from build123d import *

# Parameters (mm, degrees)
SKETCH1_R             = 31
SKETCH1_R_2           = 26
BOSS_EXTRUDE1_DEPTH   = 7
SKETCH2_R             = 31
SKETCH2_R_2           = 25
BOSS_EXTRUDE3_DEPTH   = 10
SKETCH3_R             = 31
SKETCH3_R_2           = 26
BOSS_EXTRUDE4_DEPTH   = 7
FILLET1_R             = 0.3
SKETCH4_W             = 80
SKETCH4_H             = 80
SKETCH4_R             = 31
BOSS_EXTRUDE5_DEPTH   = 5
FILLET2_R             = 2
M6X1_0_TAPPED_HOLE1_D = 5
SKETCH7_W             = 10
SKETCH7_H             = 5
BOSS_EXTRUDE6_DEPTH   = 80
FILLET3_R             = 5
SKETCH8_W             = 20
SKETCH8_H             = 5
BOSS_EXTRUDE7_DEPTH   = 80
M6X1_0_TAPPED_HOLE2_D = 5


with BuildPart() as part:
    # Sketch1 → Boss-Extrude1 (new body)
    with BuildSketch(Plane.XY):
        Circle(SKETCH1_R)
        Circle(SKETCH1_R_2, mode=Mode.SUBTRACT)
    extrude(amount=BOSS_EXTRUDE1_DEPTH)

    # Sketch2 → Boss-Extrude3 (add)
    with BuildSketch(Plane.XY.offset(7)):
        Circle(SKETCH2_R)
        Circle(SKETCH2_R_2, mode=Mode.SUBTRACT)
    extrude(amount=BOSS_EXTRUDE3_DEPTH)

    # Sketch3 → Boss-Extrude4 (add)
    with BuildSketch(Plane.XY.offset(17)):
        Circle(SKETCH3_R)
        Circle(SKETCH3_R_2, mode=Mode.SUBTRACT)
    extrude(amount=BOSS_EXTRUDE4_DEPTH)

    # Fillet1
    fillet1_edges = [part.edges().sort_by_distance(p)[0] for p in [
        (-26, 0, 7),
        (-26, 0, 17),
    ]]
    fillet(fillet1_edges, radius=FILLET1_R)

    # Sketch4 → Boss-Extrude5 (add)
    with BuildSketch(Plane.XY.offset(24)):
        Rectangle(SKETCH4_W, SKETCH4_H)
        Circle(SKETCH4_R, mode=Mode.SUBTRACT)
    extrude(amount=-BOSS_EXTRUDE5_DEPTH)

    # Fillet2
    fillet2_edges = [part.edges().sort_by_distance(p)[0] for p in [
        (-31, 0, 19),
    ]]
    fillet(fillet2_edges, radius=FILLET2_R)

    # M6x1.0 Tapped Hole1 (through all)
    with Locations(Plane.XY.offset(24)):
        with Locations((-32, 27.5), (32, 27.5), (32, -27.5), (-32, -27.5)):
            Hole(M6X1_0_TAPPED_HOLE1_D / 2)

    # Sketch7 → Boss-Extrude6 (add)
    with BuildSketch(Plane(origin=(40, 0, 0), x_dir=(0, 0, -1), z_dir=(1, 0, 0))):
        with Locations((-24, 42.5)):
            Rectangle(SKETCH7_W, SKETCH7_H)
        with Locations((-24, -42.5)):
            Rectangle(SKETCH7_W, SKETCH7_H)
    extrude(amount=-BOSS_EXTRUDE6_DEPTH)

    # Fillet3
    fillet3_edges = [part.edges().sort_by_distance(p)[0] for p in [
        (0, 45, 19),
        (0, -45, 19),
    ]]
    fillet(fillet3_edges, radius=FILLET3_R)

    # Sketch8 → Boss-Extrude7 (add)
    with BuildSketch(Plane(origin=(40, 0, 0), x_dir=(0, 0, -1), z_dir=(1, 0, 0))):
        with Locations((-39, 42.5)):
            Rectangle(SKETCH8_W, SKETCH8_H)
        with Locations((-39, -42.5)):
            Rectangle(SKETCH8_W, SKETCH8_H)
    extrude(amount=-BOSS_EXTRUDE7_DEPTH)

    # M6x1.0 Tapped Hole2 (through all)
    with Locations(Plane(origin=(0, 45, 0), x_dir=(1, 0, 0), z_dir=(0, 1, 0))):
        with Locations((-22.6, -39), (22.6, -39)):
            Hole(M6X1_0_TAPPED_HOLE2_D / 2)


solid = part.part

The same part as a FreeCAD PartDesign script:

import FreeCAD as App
import Part
import Sketcher
from FreeCAD import Vector


def edges_at(feature, points):
    """Names of the edges that pass closest to the given points."""
    edges = feature.Shape.Edges
    near = lambda p: min(range(len(edges)), key=lambda i: edges[i].distToShape(Part.Vertex(*p))[0])
    return sorted({f"Edge{near(p) + 1}" for p in points})

doc = App.newDocument("Part")
body = doc.addObject("PartDesign::Body", "Body")

# Sketch on XY plane
sketch1 = body.newObject("Sketcher::SketchObject", "Sketch")
sketch1.AttachmentSupport = (doc.getObject("XY_Plane"), [""])
sketch1.MapMode = "FlatFace"
sketch1.addGeometry(Part.Circle(Vector(0, 0, 0), Vector(0, 0, 1), 31), False)
sketch1.addGeometry(Part.Circle(Vector(0, 0, 0), Vector(0, 0, 1), 26), False)
sketch1.addConstraint(Sketcher.Constraint("Coincident", 0, 3, -1, 1))
sketch1.addConstraint(Sketcher.Constraint("Coincident", 1, 3, -1, 1))
sketch1.addConstraint(Sketcher.Constraint("Diameter", 0, 62.0))
sketch1.addConstraint(Sketcher.Constraint("Diameter", 1, 52.0))
pad1 = body.newObject("PartDesign::Pad", "Pad")
pad1.Profile = sketch1
pad1.Length = 7

# Sketch on XY plane
sketch2 = body.newObject("Sketcher::SketchObject", "Sketch001")
sketch2.AttachmentSupport = (doc.getObject("XY_Plane"), [""])
sketch2.MapMode = "FlatFace"
sketch2.AttachmentOffset = App.Placement(Vector(0, 0, 7), App.Rotation())
sketch2.addGeometry(Part.Circle(Vector(0, 0, 0), Vector(0, 0, 1), 31), False)
sketch2.addGeometry(Part.Circle(Vector(0, 0, 0), Vector(0, 0, 1), 25), False)
sketch2.addConstraint(Sketcher.Constraint("Coincident", 0, 3, -1, 1))
sketch2.addConstraint(Sketcher.Constraint("Coincident", 1, 3, -1, 1))
sketch2.addConstraint(Sketcher.Constraint("Diameter", 0, 62.0))
sketch2.addConstraint(Sketcher.Constraint("Diameter", 1, 50.0))
pad2 = body.newObject("PartDesign::Pad", "Pad001")
pad2.Profile = sketch2
pad2.Length = 10

# Sketch on XY plane
sketch3 = body.newObject("Sketcher::SketchObject", "Sketch002")
sketch3.AttachmentSupport = (doc.getObject("XY_Plane"), [""])
sketch3.MapMode = "FlatFace"
sketch3.AttachmentOffset = App.Placement(Vector(0, 0, 17), App.Rotation())
sketch3.addGeometry(Part.Circle(Vector(0, 0, 0), Vector(0, 0, 1), 31), False)
sketch3.addGeometry(Part.Circle(Vector(0, 0, 0), Vector(0, 0, 1), 26), False)
sketch3.addConstraint(Sketcher.Constraint("Coincident", 0, 3, -1, 1))
sketch3.addConstraint(Sketcher.Constraint("Coincident", 1, 3, -1, 1))
sketch3.addConstraint(Sketcher.Constraint("Diameter", 0, 62.0))
sketch3.addConstraint(Sketcher.Constraint("Diameter", 1, 52.0))
pad3 = body.newObject("PartDesign::Pad", "Pad002")
pad3.Profile = sketch3
pad3.Length = 7
doc.recompute()

fillet = body.newObject("PartDesign::Fillet", "Fillet")
fillet.Base = (pad3, edges_at(pad3, [(-26, 0, 7), (-26, 0, 17)]))
fillet.Radius = 0.3

# Sketch on XY plane
sketch4 = body.newObject("Sketcher::SketchObject", "Sketch003")
sketch4.AttachmentSupport = (doc.getObject("XY_Plane"), [""])
sketch4.MapMode = "FlatFace"
sketch4.AttachmentOffset = App.Placement(Vector(0, 0, 24), App.Rotation())
sketch4.addGeometry(Part.LineSegment(Vector(-40, 40, 0), Vector(-40, -40, 0)), False)
sketch4.addGeometry(Part.LineSegment(Vector(-40, -40, 0), Vector(40, -40, 0)), False)
sketch4.addGeometry(Part.LineSegment(Vector(40, -40, 0), Vector(40, 40, 0)), False)
sketch4.addGeometry(Part.LineSegment(Vector(40, 40, 0), Vector(-40, 40, 0)), False)
sketch4.addGeometry(Part.Circle(Vector(0, 0, 0), Vector(0, 0, 1), 31), False)
sketch4.addConstraint(Sketcher.Constraint("Coincident", 0, 2, 1, 1))
sketch4.addConstraint(Sketcher.Constraint("Coincident", 1, 2, 2, 1))
sketch4.addConstraint(Sketcher.Constraint("Coincident", 2, 2, 3, 1))
sketch4.addConstraint(Sketcher.Constraint("Coincident", 3, 2, 0, 1))
sketch4.addConstraint(Sketcher.Constraint("Vertical", 0))
sketch4.addConstraint(Sketcher.Constraint("Horizontal", 1))
sketch4.addConstraint(Sketcher.Constraint("Vertical", 2))
sketch4.addConstraint(Sketcher.Constraint("Horizontal", 3))
sketch4.addConstraint(Sketcher.Constraint("Coincident", 4, 3, -1, 1))
sketch4.addConstraint(Sketcher.Constraint("Symmetric", 0, 2, 2, 2, -1, 1))
sketch4.addConstraint(Sketcher.Constraint("Equal", 3, 0))
sketch4.addConstraint(Sketcher.Constraint("Diameter", 4, 62.0))
sketch4.addConstraint(Sketcher.Constraint("DistanceX", 1, 1, 1, 2, 80.0))
pad4 = body.newObject("PartDesign::Pad", "Pad003")
pad4.Profile = sketch4
pad4.Length = 5
pad4.Reversed = True
doc.recompute()

fillet2 = body.newObject("PartDesign::Fillet", "Fillet001")
fillet2.Base = (pad4, edges_at(pad4, [(-31, 0, 19)]))
fillet2.Radius = 2

# Sketch on XY plane
sketch5 = body.newObject("Sketcher::SketchObject", "Sketch004")
sketch5.AttachmentSupport = (doc.getObject("XY_Plane"), [""])
sketch5.MapMode = "FlatFace"
sketch5.AttachmentOffset = App.Placement(Vector(0, 0, 24), App.Rotation())
sketch5.addGeometry(Part.Circle(Vector(-32, 27.5, 0), Vector(0, 0, 1), 2.5), False)
sketch5.addGeometry(Part.Circle(Vector(32, 27.5, 0), Vector(0, 0, 1), 2.5), False)
sketch5.addGeometry(Part.Circle(Vector(32, -27.5, 0), Vector(0, 0, 1), 2.5), False)
sketch5.addGeometry(Part.Circle(Vector(-32, -27.5, 0), Vector(0, 0, 1), 2.5), False)
sketch5.addConstraint(Sketcher.Constraint("Equal", 0, 1))
sketch5.addConstraint(Sketcher.Constraint("Equal", 1, 2))
sketch5.addConstraint(Sketcher.Constraint("Equal", 2, 3))
sketch5.addConstraint(Sketcher.Constraint("Symmetric", 0, 3, 2, 3, -1, 1))
sketch5.addConstraint(Sketcher.Constraint("Symmetric", 1, 3, 3, 3, -1, 1))
sketch5.addConstraint(Sketcher.Constraint("Symmetric", 0, 3, 1, 3, -2))
sketch5.addConstraint(Sketcher.Constraint("Diameter", 0, 5.0))
sketch5.addConstraint(Sketcher.Constraint("DistanceX", 0, 3, -1, 1, 32.0))
sketch5.addConstraint(Sketcher.Constraint("DistanceY", 2, 3, 1, 3, 55.0))
doc.recompute()
hole = body.newObject("PartDesign::Hole", "Hole")
hole.Profile = sketch5
hole.ThreadType = "None"
hole.Diameter = 5
hole.DepthType = "ThroughAll"

# Sketch on YZ plane
sketch6 = body.newObject("Sketcher::SketchObject", "Sketch005")
sketch6.AttachmentSupport = (doc.getObject("YZ_Plane"), [""])
sketch6.MapMode = "FlatFace"
sketch6.AttachmentOffset = App.Placement(Vector(0, 0, 40), App.Rotation())
sketch6.addGeometry(Part.LineSegment(Vector(45, 29, 0), Vector(40, 29, 0)), False)
sketch6.addGeometry(Part.LineSegment(Vector(40, 29, 0), Vector(40, 19, 0)), False)
sketch6.addGeometry(Part.LineSegment(Vector(40, 19, 0), Vector(45, 19, 0)), False)
sketch6.addGeometry(Part.LineSegment(Vector(45, 19, 0), Vector(45, 29, 0)), False)
sketch6.addGeometry(Part.LineSegment(Vector(-40, 29, 0), Vector(-45, 29, 0)), False)
sketch6.addGeometry(Part.LineSegment(Vector(-45, 29, 0), Vector(-45, 19, 0)), False)
sketch6.addGeometry(Part.LineSegment(Vector(-45, 19, 0), Vector(-40, 19, 0)), False)
sketch6.addGeometry(Part.LineSegment(Vector(-40, 19, 0), Vector(-40, 29, 0)), False)
sketch6.addConstraint(Sketcher.Constraint("Coincident", 0, 2, 1, 1))
sketch6.addConstraint(Sketcher.Constraint("Coincident", 1, 2, 2, 1))
sketch6.addConstraint(Sketcher.Constraint("Coincident", 2, 2, 3, 1))
sketch6.addConstraint(Sketcher.Constraint("Coincident", 3, 2, 0, 1))
sketch6.addConstraint(Sketcher.Constraint("Coincident", 4, 2, 5, 1))
sketch6.addConstraint(Sketcher.Constraint("Coincident", 5, 2, 6, 1))
sketch6.addConstraint(Sketcher.Constraint("Coincident", 6, 2, 7, 1))
sketch6.addConstraint(Sketcher.Constraint("Coincident", 7, 2, 4, 1))
sketch6.addConstraint(Sketcher.Constraint("Horizontal", 0))
sketch6.addConstraint(Sketcher.Constraint("Vertical", 1))
sketch6.addConstraint(Sketcher.Constraint("Horizontal", 2))
sketch6.addConstraint(Sketcher.Constraint("Vertical", 3))
sketch6.addConstraint(Sketcher.Constraint("Horizontal", 4))
sketch6.addConstraint(Sketcher.Constraint("Vertical", 5))
sketch6.addConstraint(Sketcher.Constraint("Horizontal", 6))
sketch6.addConstraint(Sketcher.Constraint("Vertical", 7))
sketch6.addConstraint(Sketcher.Constraint("Symmetric", 3, 2, 4, 2, -2))
sketch6.addConstraint(Sketcher.Constraint("Symmetric", 1, 2, 6, 2, -2))
sketch6.addConstraint(Sketcher.Constraint("DistanceX", 0, 2, 0, 1, 5.0))
sketch6.addConstraint(Sketcher.Constraint("DistanceY", 1, 2, 1, 1, 10.0))
sketch6.addConstraint(Sketcher.Constraint("DistanceX", -1, 1, 0, 2, 40.0))
sketch6.addConstraint(Sketcher.Constraint("DistanceY", -1, 1, 0, 2, 29.0))
pad5 = body.newObject("PartDesign::Pad", "Pad004")
pad5.Profile = sketch6
pad5.Length = 80
pad5.Reversed = True
doc.recompute()

fillet3 = body.newObject("PartDesign::Fillet", "Fillet002")
fillet3.Base = (pad5, edges_at(pad5, [(0, 45, 19), (0, -45, 19)]))
fillet3.Radius = 5

# Sketch on YZ plane
sketch7 = body.newObject("Sketcher::SketchObject", "Sketch006")
sketch7.AttachmentSupport = (doc.getObject("YZ_Plane"), [""])
sketch7.MapMode = "FlatFace"
sketch7.AttachmentOffset = App.Placement(Vector(0, 0, 40), App.Rotation())
sketch7.addGeometry(Part.LineSegment(Vector(45, 49, 0), Vector(40, 49, 0)), False)
sketch7.addGeometry(Part.LineSegment(Vector(40, 49, 0), Vector(40, 29, 0)), False)
sketch7.addGeometry(Part.LineSegment(Vector(40, 29, 0), Vector(45, 29, 0)), False)
sketch7.addGeometry(Part.LineSegment(Vector(45, 29, 0), Vector(45, 49, 0)), False)
sketch7.addGeometry(Part.LineSegment(Vector(-40, 49, 0), Vector(-45, 49, 0)), False)
sketch7.addGeometry(Part.LineSegment(Vector(-45, 49, 0), Vector(-45, 29, 0)), False)
sketch7.addGeometry(Part.LineSegment(Vector(-45, 29, 0), Vector(-40, 29, 0)), False)
sketch7.addGeometry(Part.LineSegment(Vector(-40, 29, 0), Vector(-40, 49, 0)), False)
sketch7.addConstraint(Sketcher.Constraint("Coincident", 0, 2, 1, 1))
sketch7.addConstraint(Sketcher.Constraint("Coincident", 1, 2, 2, 1))
sketch7.addConstraint(Sketcher.Constraint("Coincident", 2, 2, 3, 1))
sketch7.addConstraint(Sketcher.Constraint("Coincident", 3, 2, 0, 1))
sketch7.addConstraint(Sketcher.Constraint("Coincident", 4, 2, 5, 1))
sketch7.addConstraint(Sketcher.Constraint("Coincident", 5, 2, 6, 1))
sketch7.addConstraint(Sketcher.Constraint("Coincident", 6, 2, 7, 1))
sketch7.addConstraint(Sketcher.Constraint("Coincident", 7, 2, 4, 1))
sketch7.addConstraint(Sketcher.Constraint("Horizontal", 0))
sketch7.addConstraint(Sketcher.Constraint("Vertical", 1))
sketch7.addConstraint(Sketcher.Constraint("Horizontal", 2))
sketch7.addConstraint(Sketcher.Constraint("Vertical", 3))
sketch7.addConstraint(Sketcher.Constraint("Horizontal", 4))
sketch7.addConstraint(Sketcher.Constraint("Vertical", 5))
sketch7.addConstraint(Sketcher.Constraint("Horizontal", 6))
sketch7.addConstraint(Sketcher.Constraint("Vertical", 7))
sketch7.addConstraint(Sketcher.Constraint("Symmetric", 3, 2, 4, 2, -2))
sketch7.addConstraint(Sketcher.Constraint("Symmetric", 1, 2, 6, 2, -2))
sketch7.addConstraint(Sketcher.Constraint("DistanceX", 0, 2, 0, 1, 5.0))
sketch7.addConstraint(Sketcher.Constraint("DistanceY", 1, 2, 1, 1, 20.0))
sketch7.addConstraint(Sketcher.Constraint("DistanceX", -1, 1, 0, 2, 40.0))
sketch7.addConstraint(Sketcher.Constraint("DistanceY", -1, 1, 0, 2, 49.0))
pad6 = body.newObject("PartDesign::Pad", "Pad005")
pad6.Profile = sketch7
pad6.Length = 80
pad6.Reversed = True

# Sketch on XZ plane
sketch8 = body.newObject("Sketcher::SketchObject", "Sketch007")
sketch8.AttachmentSupport = (doc.getObject("XZ_Plane"), [""])
sketch8.MapMode = "FlatFace"
sketch8.AttachmentOffset = App.Placement(Vector(0, 0, -45), App.Rotation())
sketch8.addGeometry(Part.Circle(Vector(-22.6, 39, 0), Vector(0, 0, 1), 2.5), False)
sketch8.addGeometry(Part.Circle(Vector(22.6, 39, 0), Vector(0, 0, 1), 2.5), False)
sketch8.addConstraint(Sketcher.Constraint("Equal", 0, 1))
sketch8.addConstraint(Sketcher.Constraint("Symmetric", 0, 3, 1, 3, -2))
sketch8.addConstraint(Sketcher.Constraint("Diameter", 0, 5.0))
sketch8.addConstraint(Sketcher.Constraint("DistanceY", -1, 1, 0, 3, 39.0))
sketch8.addConstraint(Sketcher.Constraint("DistanceX", 0, 3, -1, 1, 22.6))
doc.recompute()
hole2 = body.newObject("PartDesign::Hole", "Hole001")
hole2.Profile = sketch8
hole2.ThreadType = "None"
hole2.Diameter = 5
hole2.DepthType = "ThroughAll"
hole2.Reversed = True

doc.recompute()
